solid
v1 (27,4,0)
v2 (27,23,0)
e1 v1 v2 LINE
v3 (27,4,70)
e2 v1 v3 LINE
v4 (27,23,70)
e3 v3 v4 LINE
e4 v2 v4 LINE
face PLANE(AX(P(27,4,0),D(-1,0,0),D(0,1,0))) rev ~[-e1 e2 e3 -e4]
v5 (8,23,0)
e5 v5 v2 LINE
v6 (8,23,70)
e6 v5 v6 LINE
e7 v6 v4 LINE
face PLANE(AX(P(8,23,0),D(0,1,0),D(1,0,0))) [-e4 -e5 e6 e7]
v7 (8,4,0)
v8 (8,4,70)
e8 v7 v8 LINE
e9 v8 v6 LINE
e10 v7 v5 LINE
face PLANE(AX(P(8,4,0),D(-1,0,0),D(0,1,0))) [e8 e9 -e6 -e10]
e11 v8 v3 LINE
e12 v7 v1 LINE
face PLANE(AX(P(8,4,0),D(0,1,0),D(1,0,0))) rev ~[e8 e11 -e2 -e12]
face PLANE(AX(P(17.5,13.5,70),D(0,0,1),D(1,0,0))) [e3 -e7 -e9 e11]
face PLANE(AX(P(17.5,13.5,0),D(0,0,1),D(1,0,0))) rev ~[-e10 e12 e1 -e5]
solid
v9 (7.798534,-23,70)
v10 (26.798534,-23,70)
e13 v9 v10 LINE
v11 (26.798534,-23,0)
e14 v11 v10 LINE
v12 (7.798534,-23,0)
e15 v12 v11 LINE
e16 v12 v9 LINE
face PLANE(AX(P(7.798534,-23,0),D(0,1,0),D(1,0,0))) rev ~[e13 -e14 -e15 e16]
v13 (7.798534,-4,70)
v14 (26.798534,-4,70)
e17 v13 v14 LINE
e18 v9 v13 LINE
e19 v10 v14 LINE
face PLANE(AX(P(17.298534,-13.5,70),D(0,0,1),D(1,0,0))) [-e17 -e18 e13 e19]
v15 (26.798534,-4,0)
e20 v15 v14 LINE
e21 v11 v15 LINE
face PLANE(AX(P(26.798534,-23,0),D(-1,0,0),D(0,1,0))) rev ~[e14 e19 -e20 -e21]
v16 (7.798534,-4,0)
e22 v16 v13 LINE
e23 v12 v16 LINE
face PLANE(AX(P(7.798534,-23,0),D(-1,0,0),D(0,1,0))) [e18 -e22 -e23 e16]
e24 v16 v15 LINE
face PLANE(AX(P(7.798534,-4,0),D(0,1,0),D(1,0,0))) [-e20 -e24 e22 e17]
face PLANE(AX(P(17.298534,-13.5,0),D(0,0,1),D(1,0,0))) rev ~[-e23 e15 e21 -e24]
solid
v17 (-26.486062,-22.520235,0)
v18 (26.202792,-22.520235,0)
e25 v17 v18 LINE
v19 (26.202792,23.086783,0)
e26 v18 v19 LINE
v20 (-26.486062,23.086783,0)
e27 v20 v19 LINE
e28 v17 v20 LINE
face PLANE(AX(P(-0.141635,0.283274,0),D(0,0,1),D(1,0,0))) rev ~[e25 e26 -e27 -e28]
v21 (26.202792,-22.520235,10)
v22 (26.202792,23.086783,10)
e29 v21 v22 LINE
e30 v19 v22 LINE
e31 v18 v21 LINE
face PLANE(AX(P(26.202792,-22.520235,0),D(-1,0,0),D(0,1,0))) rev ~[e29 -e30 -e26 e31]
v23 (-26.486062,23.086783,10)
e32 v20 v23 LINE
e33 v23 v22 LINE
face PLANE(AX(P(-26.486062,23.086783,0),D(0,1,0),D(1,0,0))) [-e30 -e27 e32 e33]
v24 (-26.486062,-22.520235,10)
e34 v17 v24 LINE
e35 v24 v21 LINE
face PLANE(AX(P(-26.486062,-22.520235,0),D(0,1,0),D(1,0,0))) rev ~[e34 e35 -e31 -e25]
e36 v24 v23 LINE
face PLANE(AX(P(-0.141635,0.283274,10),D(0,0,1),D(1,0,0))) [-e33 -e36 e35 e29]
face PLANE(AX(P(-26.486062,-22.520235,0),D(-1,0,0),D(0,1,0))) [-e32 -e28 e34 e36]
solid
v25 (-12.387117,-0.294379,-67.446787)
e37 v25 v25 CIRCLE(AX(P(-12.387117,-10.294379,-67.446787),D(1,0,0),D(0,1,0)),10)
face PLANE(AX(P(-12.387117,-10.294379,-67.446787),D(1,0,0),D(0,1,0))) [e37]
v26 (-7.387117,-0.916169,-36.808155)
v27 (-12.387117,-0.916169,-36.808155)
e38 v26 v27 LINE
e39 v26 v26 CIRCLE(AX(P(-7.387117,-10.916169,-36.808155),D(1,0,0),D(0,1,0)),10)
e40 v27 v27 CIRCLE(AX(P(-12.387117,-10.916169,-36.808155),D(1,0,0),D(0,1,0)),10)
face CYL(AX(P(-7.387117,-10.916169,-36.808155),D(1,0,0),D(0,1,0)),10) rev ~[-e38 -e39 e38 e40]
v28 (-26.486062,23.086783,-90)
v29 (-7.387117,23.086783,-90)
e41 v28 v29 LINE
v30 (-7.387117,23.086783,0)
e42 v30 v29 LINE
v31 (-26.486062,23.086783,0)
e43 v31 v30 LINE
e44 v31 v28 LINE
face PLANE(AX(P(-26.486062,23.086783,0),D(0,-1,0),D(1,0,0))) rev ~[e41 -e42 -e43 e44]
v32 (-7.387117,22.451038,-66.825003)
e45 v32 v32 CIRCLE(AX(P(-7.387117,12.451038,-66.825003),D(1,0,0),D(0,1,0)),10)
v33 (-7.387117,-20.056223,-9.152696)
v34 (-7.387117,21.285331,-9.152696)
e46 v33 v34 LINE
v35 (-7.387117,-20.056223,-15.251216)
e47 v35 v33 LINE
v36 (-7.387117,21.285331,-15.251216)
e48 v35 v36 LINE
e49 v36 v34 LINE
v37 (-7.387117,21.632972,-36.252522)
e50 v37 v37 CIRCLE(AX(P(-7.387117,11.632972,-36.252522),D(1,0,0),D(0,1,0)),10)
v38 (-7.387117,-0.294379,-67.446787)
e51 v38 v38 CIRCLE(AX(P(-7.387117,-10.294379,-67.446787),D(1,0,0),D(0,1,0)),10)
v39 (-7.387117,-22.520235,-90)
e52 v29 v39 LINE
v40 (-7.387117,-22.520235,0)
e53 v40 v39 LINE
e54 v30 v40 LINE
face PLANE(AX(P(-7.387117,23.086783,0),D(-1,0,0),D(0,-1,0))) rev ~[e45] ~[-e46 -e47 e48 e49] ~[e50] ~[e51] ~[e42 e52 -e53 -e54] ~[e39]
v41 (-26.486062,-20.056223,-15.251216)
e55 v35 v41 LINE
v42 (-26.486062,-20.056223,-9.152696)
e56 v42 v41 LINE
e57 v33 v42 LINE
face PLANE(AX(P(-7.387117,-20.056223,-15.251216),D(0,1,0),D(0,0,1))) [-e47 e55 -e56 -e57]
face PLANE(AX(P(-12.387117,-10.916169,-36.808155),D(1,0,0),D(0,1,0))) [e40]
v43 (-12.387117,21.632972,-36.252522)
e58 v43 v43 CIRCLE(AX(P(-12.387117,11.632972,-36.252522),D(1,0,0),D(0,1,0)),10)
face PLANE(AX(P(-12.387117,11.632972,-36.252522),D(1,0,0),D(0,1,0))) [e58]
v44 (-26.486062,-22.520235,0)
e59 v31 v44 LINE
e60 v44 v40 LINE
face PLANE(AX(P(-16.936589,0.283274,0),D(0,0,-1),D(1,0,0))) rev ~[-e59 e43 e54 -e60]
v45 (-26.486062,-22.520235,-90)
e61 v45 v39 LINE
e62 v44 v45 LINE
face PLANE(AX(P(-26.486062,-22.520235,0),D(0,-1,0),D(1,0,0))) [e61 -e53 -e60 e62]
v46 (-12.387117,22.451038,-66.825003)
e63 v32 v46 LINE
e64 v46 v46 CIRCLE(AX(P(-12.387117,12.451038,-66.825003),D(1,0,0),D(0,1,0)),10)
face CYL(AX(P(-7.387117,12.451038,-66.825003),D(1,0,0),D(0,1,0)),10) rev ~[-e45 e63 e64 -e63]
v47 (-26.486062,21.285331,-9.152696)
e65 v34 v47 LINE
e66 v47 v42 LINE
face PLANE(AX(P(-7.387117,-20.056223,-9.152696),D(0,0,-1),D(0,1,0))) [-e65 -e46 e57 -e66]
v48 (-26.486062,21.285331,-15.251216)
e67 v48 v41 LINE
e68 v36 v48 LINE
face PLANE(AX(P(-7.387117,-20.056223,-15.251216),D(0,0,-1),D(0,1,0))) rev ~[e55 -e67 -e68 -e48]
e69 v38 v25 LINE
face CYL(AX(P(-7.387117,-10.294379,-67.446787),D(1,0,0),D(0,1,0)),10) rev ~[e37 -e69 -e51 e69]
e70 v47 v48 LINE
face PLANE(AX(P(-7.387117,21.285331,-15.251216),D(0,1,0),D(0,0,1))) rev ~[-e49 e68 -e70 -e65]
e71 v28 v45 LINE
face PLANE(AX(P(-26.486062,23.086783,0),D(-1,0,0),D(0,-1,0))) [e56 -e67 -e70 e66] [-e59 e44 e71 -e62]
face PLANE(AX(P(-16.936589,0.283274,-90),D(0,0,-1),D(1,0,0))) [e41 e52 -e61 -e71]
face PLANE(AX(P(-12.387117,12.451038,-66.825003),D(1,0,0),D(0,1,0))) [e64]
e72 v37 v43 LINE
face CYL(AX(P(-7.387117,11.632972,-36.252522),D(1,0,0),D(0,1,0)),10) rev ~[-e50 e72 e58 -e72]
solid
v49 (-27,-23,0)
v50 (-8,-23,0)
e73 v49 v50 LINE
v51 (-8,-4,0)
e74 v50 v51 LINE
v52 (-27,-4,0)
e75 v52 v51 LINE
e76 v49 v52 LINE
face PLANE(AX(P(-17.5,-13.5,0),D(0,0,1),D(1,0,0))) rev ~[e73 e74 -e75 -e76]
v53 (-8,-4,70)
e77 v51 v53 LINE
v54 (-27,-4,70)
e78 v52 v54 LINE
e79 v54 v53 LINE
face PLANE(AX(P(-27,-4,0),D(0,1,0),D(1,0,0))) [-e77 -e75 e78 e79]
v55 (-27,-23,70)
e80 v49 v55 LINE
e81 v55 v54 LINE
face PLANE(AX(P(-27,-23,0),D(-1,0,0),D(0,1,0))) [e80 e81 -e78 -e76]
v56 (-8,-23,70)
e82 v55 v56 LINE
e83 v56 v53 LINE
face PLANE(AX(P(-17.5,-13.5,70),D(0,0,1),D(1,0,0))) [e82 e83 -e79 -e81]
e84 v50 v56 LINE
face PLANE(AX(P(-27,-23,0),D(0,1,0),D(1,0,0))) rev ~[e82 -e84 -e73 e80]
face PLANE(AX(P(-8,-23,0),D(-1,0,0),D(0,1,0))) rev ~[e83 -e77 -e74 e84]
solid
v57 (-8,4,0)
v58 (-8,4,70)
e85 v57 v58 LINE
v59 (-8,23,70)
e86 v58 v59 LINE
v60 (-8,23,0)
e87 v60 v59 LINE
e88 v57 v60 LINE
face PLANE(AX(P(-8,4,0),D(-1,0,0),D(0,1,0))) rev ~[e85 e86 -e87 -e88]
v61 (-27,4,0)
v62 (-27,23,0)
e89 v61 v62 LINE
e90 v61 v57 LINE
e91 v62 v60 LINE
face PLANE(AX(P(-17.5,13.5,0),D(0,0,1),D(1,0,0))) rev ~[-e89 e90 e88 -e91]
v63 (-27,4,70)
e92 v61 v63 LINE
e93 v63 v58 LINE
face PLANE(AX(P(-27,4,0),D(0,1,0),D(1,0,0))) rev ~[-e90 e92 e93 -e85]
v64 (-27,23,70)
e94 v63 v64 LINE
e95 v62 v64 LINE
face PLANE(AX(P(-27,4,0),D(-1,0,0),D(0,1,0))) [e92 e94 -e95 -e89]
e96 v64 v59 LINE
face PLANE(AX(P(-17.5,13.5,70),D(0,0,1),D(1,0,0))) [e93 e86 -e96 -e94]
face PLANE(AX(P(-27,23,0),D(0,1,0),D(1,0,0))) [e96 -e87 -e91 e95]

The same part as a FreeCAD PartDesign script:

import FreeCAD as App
import Part
import Sketcher

V = App.Vector
Q = App.Units.Quantity


def add_polygon(sketch, points):
    """Adds a closed chain of lines whose ends are joined by coincident constraints."""
    first, n = sketch.GeometryCount, len(points)
    for a, b in zip(points, points[1:] + points[:1]):
        sketch.addGeometry(Part.LineSegment(App.Vector(*a, 0), App.Vector(*b, 0)), False)
    for i in range(n):
        sketch.addConstraint(Sketcher.Constraint("Coincident", first + i, 2, first + (i + 1) % n, 1))

doc = App.newDocument("Part")
params = doc.addObject("Spreadsheet::Sheet", "Params")
for row, (alias, value) in enumerate([
    ("sketch1_width", "19 mm"),
    ("pad1_length", "70 mm"),
    ("sketch2_width", "19 mm"),
    ("pad2_length", "70 mm"),
    ("sketch3_width", "19 mm"),
    ("pad3_length", "70 mm"),
    ("pad4_length", "70 mm"),
    ("sketch5_width", "19 mm"),
    ("pad5_length", "70 mm"),
    ("pad6_length", "10 mm"),
    ("pad7_length", "90 mm"),
    ("sketch8_diameter", "20 mm"),
    ("pocket1_length", "5 mm"),
    ("pocket2_length", "25 mm"),
], start=1):
    params.set(f"A{row}", alias)
    params.set(f"B{row}", "=" + value)
    params.setAlias(f"B{row}", alias)

body = doc.addObject("PartDesign::Body", "Body")

sketch1 = body.newObject("Sketcher::SketchObject", "Sketch")
sketch1.AttachmentSupport = (doc.getObject("XY_Plane"), [""])
sketch1.MapMode = "FlatFace"
add_polygon(sketch1, [(8, 23), (8, 4), (27, 4), (27, 23)])
sketch1.addConstraint(Sketcher.Constraint("Vertical", 0))
sketch1.addConstraint(Sketcher.Constraint("Horizontal", 1))
sketch1.addConstraint(Sketcher.Constraint("Vertical", 2))
sketch1.addConstraint(Sketcher.Constraint("Horizontal", 3))
sketch1.addConstraint(Sketcher.Constraint("Equal", 3, 0))
sketch1.addConstraint(Sketcher.Constraint("DistanceX", 1, 1, 1, 2, Q("19 mm")))
sketch1.addConstraint(Sketcher.Constraint("DistanceX", -1, 1, 0, 2, Q("8 mm")))
sketch1.addConstraint(Sketcher.Constraint("DistanceY", -1, 1, 0, 2, Q("4 mm")))
sketch1.setExpression("Constraints[9]", "Params.sketch1_width")
pad1 = body.newObject("PartDesign::Pad", "Pad")
pad1.Profile = sketch1
pad1.setExpression("Length", "Params.pad1_length")
body2 = doc.addObject("PartDesign::Body", "Body001")

sketch2 = body2.newObject("Sketcher::SketchObject", "Sketch001")
sketch2.AttachmentSupport = (doc.getObject("XY_Plane001"), [""])
sketch2.MapMode = "FlatFace"
add_polygon(sketch2, [(8, -4), (8, -23), (27, -23), (27, -4)])
sketch2.addConstraint(Sketcher.Constraint("Vertical", 0))
sketch2.addConstraint(Sketcher.Constraint("Horizontal", 1))
sketch2.addConstraint(Sketcher.Constraint("Vertical", 2))
sketch2.addConstraint(Sketcher.Constraint("Horizontal", 3))
sketch2.addConstraint(Sketcher.Constraint("Equal", 3, 0))
sketch2.addConstraint(Sketcher.Constraint("DistanceX", 1, 1, 1, 2, Q("19 mm")))
sketch2.addConstraint(Sketcher.Constraint("DistanceY", 0, 2, -1, 1, Q("23 mm")))
sketch2.addConstraint(Sketcher.Constraint("DistanceX", -1, 1, 0, 2, Q("7.798534 mm")))
sketch2.setExpression("Constraints[9]", "Params.sketch2_width")
pad2 = body2.newObject("PartDesign::Pad", "Pad001")
pad2.Profile = sketch2
pad2.setExpression("Length", "Params.pad2_length")
body3 = doc.addObject("PartDesign::Body", "Body002")

sketch3 = body3.newObject("Sketcher::SketchObject", "Sketch002")
sketch3.AttachmentSupport = (doc.getObject("XY_Plane002"), [""])
sketch3.MapMode = "FlatFace"
add_polygon(sketch3, [(-27, 23), (-27, 4), (-8, 4), (-8, 23)])
sketch3.addConstraint(Sketcher.Constraint("Vertical", 0))
sketch3.addConstraint(Sketcher.Constraint("Horizontal", 1))
sketch3.addConstraint(Sketcher.Constraint("Vertical", 2))
sketch3.addConstraint(Sketcher.Constraint("Horizontal", 3))
sketch3.addConstraint(Sketcher.Constraint("Equal", 3, 0))
sketch3.addConstraint(Sketcher.Constraint("DistanceX", 1, 1, 1, 2, Q("19 mm")))
sketch3.addConstraint(Sketcher.Constraint("DistanceX", 0, 2, -1, 1, Q("27 mm")))
sketch3.addConstraint(Sketcher.Constraint("DistanceY", -1, 1, 0, 2, Q("4 mm")))
sketch3.setExpression("Constraints[9]", "Params.sketch3_width")
pad3 = body3.newObject("PartDesign::Pad", "Pad002")
pad3.Profile = sketch3
pad3.setExpression("Length", "Params.pad3_length")
body4 = doc.addObject("PartDesign::Body", "Body003")

sketch4 = body4.newObject("Sketcher::SketchObject", "Sketch003")
sketch4.AttachmentSupport = (doc.getObject("XY_Plane003"), [""])
sketch4.MapMode = "FlatFace"
add_polygon(sketch4, [(-58.05, 38.42), (-58.05, 36.8), (-57.72, 36.8), (-57.72, 38.42)])
sketch4.addConstraint(Sketcher.Constraint("Vertical", 0))
sketch4.addConstraint(Sketcher.Constraint("Horizontal", 1))
sketch4.addConstraint(Sketcher.Constraint("Vertical", 2))
sketch4.addConstraint(Sketcher.Constraint("Horizontal", 3))
sketch4.addConstraint(Sketcher.Constraint("DistanceX", 1, 1, 1, 2, Q("0.323053 mm")))
sketch4.addConstraint(Sketcher.Constraint("DistanceY", 0, 2, 0, 1, Q("1.615256 mm")))
sketch4.addConstraint(Sketcher.Constraint("DistanceY", -1, 1, 2, 2, Q("38.416781 mm")))
sketch4.addConstraint(Sketcher.Constraint("DistanceX", 0, 2, -1, 1, Q("58.046006 mm")))
pad4 = body4.newObject("PartDesign::Pad", "Pad003")
pad4.Profile = sketch4
pad4.setExpression("Length", "Params.pad4_length")
body5 = doc.addObject("PartDesign::Body", "Body004")

sketch5 = body5.newObject("Sketcher::SketchObject", "Sketch004")
sketch5.AttachmentSupport = (doc.getObject("XY_Plane004"), [""])
sketch5.MapMode = "FlatFace"
add_polygon(sketch5, [(-27, -4), (-27, -23), (-8, -23), (-8, -4)])
sketch5.addConstraint(Sketcher.Constraint("Vertical", 0))
sketch5.addConstraint(Sketcher.Constraint("Horizontal", 1))
sketch5.addConstraint(Sketcher.Constraint("Vertical", 2))
sketch5.addConstraint(Sketcher.Constraint("Horizontal", 3))
sketch5.addConstraint(Sketcher.Constraint("Equal", 3, 0))
sketch5.addConstraint(Sketcher.Constraint("DistanceX", 1, 1, 1, 2, Q("19 mm")))
sketch5.addConstraint(Sketcher.Constraint("DistanceX", 0, 2, -1, 1, Q("27 mm")))
sketch5.addConstraint(Sketcher.Constraint("DistanceY", 0, 2, -1, 1, Q("23 mm")))
sketch5.setExpression("Constraints[9]", "Params.sketch5_width")
pad5 = body5.newObject("PartDesign::Pad", "Pad004")
pad5.Profile = sketch5
pad5.setExpression("Length", "Params.pad5_length")
body6 = doc.addObject("PartDesign::Body", "Body005")

sketch6 = body6.newObject("Sketcher::SketchObject", "Sketch005")
sketch6.AttachmentSupport = (doc.getObject("XY_Plane005"), [""])
sketch6.MapMode = "FlatFace"
add_polygon(sketch6, [(-26, 23), (-26, -23), (26, -23), (26, 23)])
sketch6.addConstraint(Sketcher.Constraint("Vertical", 0))
sketch6.addConstraint(Sketcher.Constraint("Horizontal", 1))
sketch6.addConstraint(Sketcher.Constraint("Vertical", 2))
sketch6.addConstraint(Sketcher.Constraint("Horizontal", 3))
sketch6.addConstraint(Sketcher.Constraint("DistanceX", 1, 1, 1, 2, Q("52.688854 mm")))
sketch6.addConstraint(Sketcher.Constraint("DistanceY", 0, 2, 0, 1, Q("45.607017 mm")))
sketch6.addConstraint(Sketcher.Constraint("DistanceX", 0, 2, -1, 1, Q("26.486062 mm")))
sketch6.addConstraint(Sketcher.Constraint("DistanceY", 0, 2, -1, 1, Q("22.520235 mm")))
pad6 = body6.newObject("PartDesign::Pad", "Pad005")
pad6.Profile = sketch6
pad6.setExpression("Length", "Params.pad6_length")
body7 = doc.addObject("PartDesign::Body", "Body006")

sketch7 = body7.newObject("Sketcher::SketchObject", "Sketch006")
sketch7.AttachmentSupport = (doc.getObject("XY_Plane006"), [""])
sketch7.MapMode = "FlatFace"
add_polygon(sketch7, [(-26, -23), (-26, 23), (-7, 23), (-7, -23)])
sketch7.addConstraint(Sketcher.Constraint("Vertical", 0))
sketch7.addConstraint(Sketcher.Constraint("Horizontal", 1))
sketch7.addConstraint(Sketcher.Constraint("Vertical", 2))
sketch7.addConstraint(Sketcher.Constraint("Horizontal", 3))
sketch7.addConstraint(Sketcher.Constraint("DistanceX", 1, 1, 1, 2, Q("19.098945 mm")))
sketch7.addConstraint(Sketcher.Constraint("DistanceY", 0, 1, 0, 2, Q("45.607017 mm")))
sketch7.addConstraint(Sketcher.Constraint("DistanceX", 0, 2, -1, 1, Q("26.486062 mm")))
sketch7.addConstraint(Sketcher.Constraint("DistanceY", -1, 1, 0, 2, Q("23.086783 mm")))
pad7 = body7.newObject("PartDesign::Pad", "Pad006")
pad7.Profile = sketch7
pad7.setExpression("Length", "Params.pad7_length")
pad7.Reversed = True

sketch8 = body7.newObject("Sketcher::SketchObject", "Sketch007")
sketch8.AttachmentSupport = (doc.getObject("YZ_Plane006"), [""])
sketch8.MapMode = "FlatFace"
sketch8.AttachmentOffset = App.Placement(V(0, 0, -7.387117), App.Rotation())
sketch8.addGeometry(Part.Circle(V(-10, -67, 0), V(0, 0, 1), 10), False)
sketch8.addGeometry(Part.Circle(V(12, -36, 0), V(0, 0, 1), 10), False)
sketch8.addGeometry(Part.Circle(V(-11, -37, 0), V(0, 0, 1), 10), False)
sketch8.addGeometry(Part.Circle(V(12, -67, 0), V(0, 0, 1), 10), False)
sketch8.addConstraint(Sketcher.Constraint("Equal", 0, 1))
sketch8.addConstraint(Sketcher.Constraint("Equal", 1, 2))
sketch8.addConstraint(Sketcher.Constraint("Equal", 2, 3))
sketch8.addConstraint(Sketcher.Constraint("Diameter", 0, Q("20 mm")))
sketch8.addConstraint(Sketcher.Constraint("DistanceX", 0, 3, -1, 1, Q("10.294379 mm")))
sketch8.addConstraint(Sketcher.Constraint("DistanceX", -1, 1, 1, 3, Q("11.632972 mm")))
sketch8.addConstraint(Sketcher.Constraint("DistanceY", 1, 3, -1, 1, Q("36.252522 mm")))
sketch8.addConstraint(Sketcher.Constraint("DistanceX", 2, 3, -1, 1, Q("10.916169 mm")))
sketch8.addConstraint(Sketcher.Constraint("DistanceY", 3, 3, 1, 3, Q("30.572481 mm")))
sketch8.addConstraint(Sketcher.Constraint("DistanceY", 0, 3, -1, 1, Q("67.446787 mm")))
sketch8.addConstraint(Sketcher.Constraint("DistanceY", 2, 3, -1, 1, Q("36.808155 mm")))
sketch8.addConstraint(Sketcher.Constraint("DistanceX", -1, 1, 3, 3, Q("12.451038 mm")))
sketch8.setExpression("Constraints[3]", "Params.sketch8_diameter")
pocket1 = body7.newObject("PartDesign::Pocket", "Pocket")
pocket1.Profile = sketch8
pocket1.setExpression("Length", "Params.pocket1_length")

sketch9 = body7.newObject("Sketcher::SketchObject", "Sketch008")
sketch9.AttachmentSupport = (doc.getObject("YZ_Plane006"), [""])
sketch9.MapMode = "FlatFace"
sketch9.AttachmentOffset = App.Placement(V(0, 0, -7.387117), App.Rotation())
add_polygon(sketch9, [(-20, -9), (-20, -15), (21, -15), (21, -9)])
sketch9.addConstraint(Sketcher.Constraint("Vertical", 0))
sketch9.addConstraint(Sketcher.Constraint("Horizontal", 1))
sketch9.addConstraint(Sketcher.Constraint("Vertical", 2))
sketch9.addConstraint(Sketcher.Constraint("Horizontal", 3))
sketch9.addConstraint(Sketcher.Constraint("DistanceY", 0, 2, 0, 1, Q("6.098521 mm")))
sketch9.addConstraint(Sketcher.Constraint("DistanceX", 1, 1, 1, 2, Q("41.341554 mm")))
sketch9.addConstraint(Sketcher.Constraint("DistanceX", -1, 1, 1, 2, Q("21.285331 mm")))
sketch9.addConstraint(Sketcher.Constraint("DistanceY", 0, 2, -1, 1, Q("15.251216 mm")))
pocket2 = body7.newObject("PartDesign::Pocket", "Pocket001")
pocket2.Profile = sketch9
pocket2.setExpression("Length", "Params.pocket2_length")
body4.Visibility = False

doc.recompute()
